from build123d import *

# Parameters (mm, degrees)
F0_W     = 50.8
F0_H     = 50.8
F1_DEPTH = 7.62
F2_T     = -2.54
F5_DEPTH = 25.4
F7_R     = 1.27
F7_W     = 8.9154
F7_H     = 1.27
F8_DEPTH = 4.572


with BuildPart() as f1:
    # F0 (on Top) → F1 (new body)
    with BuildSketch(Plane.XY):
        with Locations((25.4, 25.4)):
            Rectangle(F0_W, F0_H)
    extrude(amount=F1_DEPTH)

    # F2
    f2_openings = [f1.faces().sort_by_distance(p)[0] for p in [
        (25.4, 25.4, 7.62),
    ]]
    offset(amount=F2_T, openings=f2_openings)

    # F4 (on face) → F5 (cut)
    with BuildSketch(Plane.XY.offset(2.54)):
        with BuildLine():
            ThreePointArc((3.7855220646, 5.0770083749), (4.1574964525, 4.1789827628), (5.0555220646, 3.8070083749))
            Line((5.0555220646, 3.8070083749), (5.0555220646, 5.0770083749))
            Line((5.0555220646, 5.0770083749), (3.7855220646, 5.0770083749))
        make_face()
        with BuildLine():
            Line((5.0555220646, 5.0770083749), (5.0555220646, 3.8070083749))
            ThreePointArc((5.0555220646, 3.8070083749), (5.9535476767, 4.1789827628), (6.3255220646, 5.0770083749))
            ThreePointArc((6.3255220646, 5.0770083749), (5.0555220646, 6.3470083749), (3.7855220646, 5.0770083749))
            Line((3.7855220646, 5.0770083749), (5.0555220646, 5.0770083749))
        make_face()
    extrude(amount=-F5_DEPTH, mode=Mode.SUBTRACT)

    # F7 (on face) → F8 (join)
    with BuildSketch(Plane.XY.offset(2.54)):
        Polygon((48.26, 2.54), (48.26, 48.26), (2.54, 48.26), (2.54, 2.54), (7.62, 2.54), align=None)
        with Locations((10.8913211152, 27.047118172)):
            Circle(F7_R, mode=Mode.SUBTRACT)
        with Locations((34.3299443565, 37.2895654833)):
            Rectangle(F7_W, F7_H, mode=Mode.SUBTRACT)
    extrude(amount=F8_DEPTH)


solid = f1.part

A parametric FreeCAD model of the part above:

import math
import FreeCAD as App
import Part
import Sketcher

V = App.Vector
Q = App.Units.Quantity


def faces_at(feature, points):
    """Names of the faces that lie closest to the given points."""
    faces = feature.Shape.Faces
    near = lambda p: min(range(len(faces)), key=lambda i: faces[i].distToShape(Part.Vertex(*p))[0])
    return sorted({f"Face{near(p) + 1}" for p in points})


def add_polygon(sketch, points):
    """Adds a closed chain of lines whose ends are joined by coincident constraints."""
    first, n = sketch.GeometryCount, len(points)
    for a, b in zip(points, points[1:] + points[:1]):
        sketch.addGeometry(Part.LineSegment(App.Vector(*a, 0), App.Vector(*b, 0)), False)
    for i in range(n):
        sketch.addConstraint(Sketcher.Constraint("Coincident", first + i, 2, first + (i + 1) % n, 1))

doc = App.newDocument("Part")
body = doc.addObject("PartDesign::Body", "Body")

# Sketch on XY plane
sketch1 = body.newObject("Sketcher::SketchObject", "Sketch")
sketch1.AttachmentSupport = (doc.getObject("XY_Plane"), [""])
sketch1.MapMode = "FlatFace"
add_polygon(sketch1, [(0, 51), (0, 0), (51, 0), (51, 51)])  # lines 0-3
sketch1.addConstraint(Sketcher.Constraint("Vertical", 0))
sketch1.addConstraint(Sketcher.Constraint("Horizontal", 1))
sketch1.addConstraint(Sketcher.Constraint("Vertical", 2))
sketch1.addConstraint(Sketcher.Constraint("Horizontal", 3))
sketch1.addConstraint(Sketcher.Constraint("Coincident", 0, 2, -1, 1))
sketch1.addConstraint(Sketcher.Constraint("Equal", 3, 0))
sketch1.addConstraint(Sketcher.Constraint("DistanceX", 1, 1, 1, 2, Q("2 in")))
pad1 = body.newObject("PartDesign::Pad", "Pad")
pad1.Profile = sketch1
pad1.Length = Q("0.3 in")
doc.recompute()

thickness = body.newObject("PartDesign::Thickness", "Thickness")
thickness.Base = (pad1, faces_at(pad1, [(25.4, 25.4, 7.62)]))
thickness.Value = Q("0.1 in")
thickness.Reversed = True
thickness.Join = "Arc"

# Sketch on XY plane
sketch2 = body.newObject("Sketcher::SketchObject", "Sketch001")
sketch2.AttachmentSupport = (doc.getObject("XY_Plane"), [""])
sketch2.MapMode = "FlatFace"
sketch2.AttachmentOffset = App.Placement(V(0, 0, 0.1 * 25.4), App.Rotation())
sketch2.addGeometry(Part.ArcOfCircle(Part.Circle(V(5.1, 5.1, 0), V(0, 0, 1), 1.3), math.radians(180), math.radians(270)), False)
sketch2.addGeometry(Part.ArcOfCircle(Part.Circle(V(5.1, 5.1, 0), V(0, 0, 1), 1.3), math.radians(-90), math.radians(0)), False)
sketch2.addGeometry(Part.ArcOfCircle(Part.Circle(V(5.1, 5.1, 0), V(0, 0, 1), 1.3), math.radians(0), math.radians(180)), False)
sketch2.addConstraint(Sketcher.Constraint("Tangent", 0, 2, 1, 1))
sketch2.addConstraint(Sketcher.Constraint("Tangent", 1, 2, 2, 1))
sketch2.addConstraint(Sketcher.Constraint("Tangent", 2, 2, 0, 1))
sketch2.addConstraint(Sketcher.Constraint("Horizontal", 2, 3, 1, 2))
sketch2.addConstraint(Sketcher.Constraint("Horizontal", 1, 2, 2, 2))
sketch2.addConstraint(Sketcher.Constraint("Vertical", 2, 3, 0, 2))
sketch2.addConstraint(Sketcher.Constraint("Radius", 0, Q("0.05 in")))
sketch2.addConstraint(Sketcher.Constraint("DistanceY", -1, 1, 0, 3, Q("5.077008 mm")))
sketch2.addConstraint(Sketcher.Constraint("DistanceX", -1, 1, 0, 3, Q("5.055522 mm")))
pocket1 = body.newObject("PartDesign::Pocket", "Pocket")
pocket1.Profile = sketch2
pocket1.Length = Q("1 in")

# Sketch on XY plane
sketch3 = body.newObject("Sketcher::SketchObject", "Sketch002")
sketch3.AttachmentSupport = (doc.getObject("XY_Plane"), [""])
sketch3.MapMode = "FlatFace"
sketch3.AttachmentOffset = App.Placement(V(0, 0, 0.1 * 25.4), App.Rotation())
add_polygon(sketch3, [(48.3, 2.5), (48.3, 48.3), (2.5, 48.3), (2.5, 2.5)])  # lines 0-3
sketch3.addGeometry(Part.Circle(V(10.9, 27, 0), V(0, 0, 1), 1.3), False)  # 4
add_polygon(sketch3, [(38.8, 36.7), (29.9, 36.7), (29.9, 37.9), (38.8, 37.9)])  # lines 5-8
sketch3.addConstraint(Sketcher.Constraint("Vertical", 0))
sketch3.addConstraint(Sketcher.Constraint("Horizontal", 1))
sketch3.addConstraint(Sketcher.Constraint("Vertical", 2))
sketch3.addConstraint(Sketcher.Constraint("Horizontal", 3))
sketch3.addConstraint(Sketcher.Constraint("Horizontal", 5))
sketch3.addConstraint(Sketcher.Constraint("Vertical", 6))
sketch3.addConstraint(Sketcher.Constraint("Horizontal", 7))
sketch3.addConstraint(Sketcher.Constraint("Vertical", 8))
sketch3.addConstraint(Sketcher.Constraint("Equal", 3, 0))
sketch3.addConstraint(Sketcher.Constraint("Diameter", 4, Q("0.1 in")))
sketch3.addConstraint(Sketcher.Constraint("DistanceX", 1, 2, 1, 1, Q("1.8 in")))
sketch3.addConstraint(Sketcher.Constraint("DistanceY", 6, 1, 6, 2, Q("0.05 in")))
sketch3.addConstraint(Sketcher.Constraint("DistanceX", -1, 1, 0, 2, Q("1.9 in")))
sketch3.addConstraint(Sketcher.Constraint("DistanceY", -1, 1, 0, 2, Q("1.9 in")))
sketch3.addConstraint(Sketcher.Constraint("DistanceX", 5, 2, 5, 1, Q("0.351 in")))
sketch3.addConstraint(Sketcher.Constraint("DistanceX", -1, 1, 4, 3, Q("10.891321 mm")))
sketch3.addConstraint(Sketcher.Constraint("DistanceY", -1, 1, 4, 3, Q("27.047118 mm")))
sketch3.addConstraint(Sketcher.Constraint("DistanceX", -1, 1, 5, 2, Q("29.872244 mm")))
sketch3.addConstraint(Sketcher.Constraint("DistanceY", -1, 1, 5, 2, Q("36.654565 mm")))
pad2 = body.newObject("PartDesign::Pad", "Pad001")
pad2.Profile = sketch3
pad2.Length = Q("0.18 in")

doc.recompute()
